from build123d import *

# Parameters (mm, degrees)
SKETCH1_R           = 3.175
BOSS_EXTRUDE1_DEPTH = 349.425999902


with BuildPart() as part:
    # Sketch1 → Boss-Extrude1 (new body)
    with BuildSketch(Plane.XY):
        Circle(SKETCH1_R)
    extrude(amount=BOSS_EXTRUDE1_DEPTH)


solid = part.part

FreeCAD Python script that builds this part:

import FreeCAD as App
import Part
import Sketcher

V = App.Vector
Q = App.Units.Quantity

doc = App.newDocument("Part")
params = doc.addObject("Spreadsheet::Sheet", "Params")
for row, (alias, value) in enumerate([
    ("sketch1_diameter", "0.25 in"),
    ("pad1_length", "349.426 mm"),
], start=1):
    params.set(f"A{row}", alias)
    params.set(f"B{row}", "=" + value)
    params.setAlias(f"B{row}", alias)

body = doc.addObject("PartDesign::Body", "Body")

sketch1 = body.newObject("Sketcher::SketchObject", "Sketch")
sketch1.AttachmentSupport = (doc.getObject("XY_Plane"), [""])
sketch1.MapMode = "FlatFace"
sketch1.addGeometry(Part.Circle(V(0, 0, 0), V(0, 0, 1), 3.2), False)
sketch1.addConstraint([
    Sketcher.Constraint("Coincident", 0, 3, -1, 1),
    Sketcher.Constraint("Diameter", 0, Q("0.25 in")),
])
sketch1.setExpression("Constraints[1]", "Params.sketch1_diameter")
pad1 = body.newObject("PartDesign::Pad", "Pad")
pad1.Profile = sketch1
pad1.setExpression("Length", "Params.pad1_length")

doc.recompute()
